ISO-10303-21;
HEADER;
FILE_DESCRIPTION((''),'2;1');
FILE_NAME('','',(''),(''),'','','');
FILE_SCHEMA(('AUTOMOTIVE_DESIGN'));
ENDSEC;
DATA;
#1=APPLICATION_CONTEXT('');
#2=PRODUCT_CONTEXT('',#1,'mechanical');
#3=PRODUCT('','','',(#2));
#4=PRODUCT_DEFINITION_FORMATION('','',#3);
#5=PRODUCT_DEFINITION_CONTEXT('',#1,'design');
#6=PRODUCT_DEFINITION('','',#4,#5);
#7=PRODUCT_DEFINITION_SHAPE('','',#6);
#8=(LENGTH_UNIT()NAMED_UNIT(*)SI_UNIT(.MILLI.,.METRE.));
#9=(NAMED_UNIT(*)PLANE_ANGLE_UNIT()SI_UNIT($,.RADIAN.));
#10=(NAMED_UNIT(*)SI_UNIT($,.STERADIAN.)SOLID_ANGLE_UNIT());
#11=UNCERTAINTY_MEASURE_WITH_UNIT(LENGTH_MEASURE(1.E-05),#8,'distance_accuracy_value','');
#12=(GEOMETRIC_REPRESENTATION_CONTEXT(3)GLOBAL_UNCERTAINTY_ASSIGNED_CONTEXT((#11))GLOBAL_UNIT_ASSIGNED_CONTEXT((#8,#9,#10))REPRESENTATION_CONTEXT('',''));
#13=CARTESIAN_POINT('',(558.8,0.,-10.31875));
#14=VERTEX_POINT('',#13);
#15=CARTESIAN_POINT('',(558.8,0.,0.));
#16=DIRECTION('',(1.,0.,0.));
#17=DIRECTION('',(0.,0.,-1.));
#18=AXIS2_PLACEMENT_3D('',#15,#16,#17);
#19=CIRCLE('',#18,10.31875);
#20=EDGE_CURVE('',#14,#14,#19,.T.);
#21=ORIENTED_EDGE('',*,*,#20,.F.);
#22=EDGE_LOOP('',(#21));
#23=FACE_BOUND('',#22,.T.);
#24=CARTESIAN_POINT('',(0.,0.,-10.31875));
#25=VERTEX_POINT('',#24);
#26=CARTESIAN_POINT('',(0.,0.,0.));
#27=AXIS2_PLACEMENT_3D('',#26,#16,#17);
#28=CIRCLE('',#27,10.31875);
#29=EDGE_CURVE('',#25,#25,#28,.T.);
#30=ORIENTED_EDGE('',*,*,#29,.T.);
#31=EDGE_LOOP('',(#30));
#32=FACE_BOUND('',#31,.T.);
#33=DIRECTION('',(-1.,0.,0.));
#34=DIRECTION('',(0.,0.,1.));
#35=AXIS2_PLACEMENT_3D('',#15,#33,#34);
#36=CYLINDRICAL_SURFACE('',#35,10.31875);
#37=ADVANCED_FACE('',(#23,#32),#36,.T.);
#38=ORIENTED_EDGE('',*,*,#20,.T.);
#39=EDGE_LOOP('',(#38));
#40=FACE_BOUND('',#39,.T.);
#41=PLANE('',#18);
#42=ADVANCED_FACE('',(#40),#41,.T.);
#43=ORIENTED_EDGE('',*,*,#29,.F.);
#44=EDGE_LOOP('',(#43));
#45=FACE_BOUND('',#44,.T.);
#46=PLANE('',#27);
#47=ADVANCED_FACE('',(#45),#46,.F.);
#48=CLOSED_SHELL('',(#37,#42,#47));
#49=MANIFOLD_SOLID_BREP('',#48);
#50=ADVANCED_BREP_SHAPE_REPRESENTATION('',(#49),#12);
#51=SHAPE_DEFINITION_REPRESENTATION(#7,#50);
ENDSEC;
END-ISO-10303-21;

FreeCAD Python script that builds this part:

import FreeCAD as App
import Part
import Sketcher
Q = App.Units.Quantity

doc = App.newDocument("Part")
body = doc.addObject("PartDesign::Body", "Body")

sketch1 = body.newObject("Sketcher::SketchObject", "Sketch")
sketch1.AttachmentSupport = (doc.getObject("YZ_Plane"), [""])
sketch1.MapMode = "FlatFace"
sketch1.addGeometry(Part.Circle(App.Vector(0, 0, 0), App.Vector(0, 0, 1), 10), False)
sketch1.addConstraint([
    Sketcher.Constraint("Coincident", 0, 3, -1, 1),
    Sketcher.Constraint("Diameter", 0, Q("0.8125 in")),
])
pad1 = body.newObject("PartDesign::Pad", "Pad")
pad1.Profile = sketch1
pad1.Length = Q("22 in")

doc.recompute()
